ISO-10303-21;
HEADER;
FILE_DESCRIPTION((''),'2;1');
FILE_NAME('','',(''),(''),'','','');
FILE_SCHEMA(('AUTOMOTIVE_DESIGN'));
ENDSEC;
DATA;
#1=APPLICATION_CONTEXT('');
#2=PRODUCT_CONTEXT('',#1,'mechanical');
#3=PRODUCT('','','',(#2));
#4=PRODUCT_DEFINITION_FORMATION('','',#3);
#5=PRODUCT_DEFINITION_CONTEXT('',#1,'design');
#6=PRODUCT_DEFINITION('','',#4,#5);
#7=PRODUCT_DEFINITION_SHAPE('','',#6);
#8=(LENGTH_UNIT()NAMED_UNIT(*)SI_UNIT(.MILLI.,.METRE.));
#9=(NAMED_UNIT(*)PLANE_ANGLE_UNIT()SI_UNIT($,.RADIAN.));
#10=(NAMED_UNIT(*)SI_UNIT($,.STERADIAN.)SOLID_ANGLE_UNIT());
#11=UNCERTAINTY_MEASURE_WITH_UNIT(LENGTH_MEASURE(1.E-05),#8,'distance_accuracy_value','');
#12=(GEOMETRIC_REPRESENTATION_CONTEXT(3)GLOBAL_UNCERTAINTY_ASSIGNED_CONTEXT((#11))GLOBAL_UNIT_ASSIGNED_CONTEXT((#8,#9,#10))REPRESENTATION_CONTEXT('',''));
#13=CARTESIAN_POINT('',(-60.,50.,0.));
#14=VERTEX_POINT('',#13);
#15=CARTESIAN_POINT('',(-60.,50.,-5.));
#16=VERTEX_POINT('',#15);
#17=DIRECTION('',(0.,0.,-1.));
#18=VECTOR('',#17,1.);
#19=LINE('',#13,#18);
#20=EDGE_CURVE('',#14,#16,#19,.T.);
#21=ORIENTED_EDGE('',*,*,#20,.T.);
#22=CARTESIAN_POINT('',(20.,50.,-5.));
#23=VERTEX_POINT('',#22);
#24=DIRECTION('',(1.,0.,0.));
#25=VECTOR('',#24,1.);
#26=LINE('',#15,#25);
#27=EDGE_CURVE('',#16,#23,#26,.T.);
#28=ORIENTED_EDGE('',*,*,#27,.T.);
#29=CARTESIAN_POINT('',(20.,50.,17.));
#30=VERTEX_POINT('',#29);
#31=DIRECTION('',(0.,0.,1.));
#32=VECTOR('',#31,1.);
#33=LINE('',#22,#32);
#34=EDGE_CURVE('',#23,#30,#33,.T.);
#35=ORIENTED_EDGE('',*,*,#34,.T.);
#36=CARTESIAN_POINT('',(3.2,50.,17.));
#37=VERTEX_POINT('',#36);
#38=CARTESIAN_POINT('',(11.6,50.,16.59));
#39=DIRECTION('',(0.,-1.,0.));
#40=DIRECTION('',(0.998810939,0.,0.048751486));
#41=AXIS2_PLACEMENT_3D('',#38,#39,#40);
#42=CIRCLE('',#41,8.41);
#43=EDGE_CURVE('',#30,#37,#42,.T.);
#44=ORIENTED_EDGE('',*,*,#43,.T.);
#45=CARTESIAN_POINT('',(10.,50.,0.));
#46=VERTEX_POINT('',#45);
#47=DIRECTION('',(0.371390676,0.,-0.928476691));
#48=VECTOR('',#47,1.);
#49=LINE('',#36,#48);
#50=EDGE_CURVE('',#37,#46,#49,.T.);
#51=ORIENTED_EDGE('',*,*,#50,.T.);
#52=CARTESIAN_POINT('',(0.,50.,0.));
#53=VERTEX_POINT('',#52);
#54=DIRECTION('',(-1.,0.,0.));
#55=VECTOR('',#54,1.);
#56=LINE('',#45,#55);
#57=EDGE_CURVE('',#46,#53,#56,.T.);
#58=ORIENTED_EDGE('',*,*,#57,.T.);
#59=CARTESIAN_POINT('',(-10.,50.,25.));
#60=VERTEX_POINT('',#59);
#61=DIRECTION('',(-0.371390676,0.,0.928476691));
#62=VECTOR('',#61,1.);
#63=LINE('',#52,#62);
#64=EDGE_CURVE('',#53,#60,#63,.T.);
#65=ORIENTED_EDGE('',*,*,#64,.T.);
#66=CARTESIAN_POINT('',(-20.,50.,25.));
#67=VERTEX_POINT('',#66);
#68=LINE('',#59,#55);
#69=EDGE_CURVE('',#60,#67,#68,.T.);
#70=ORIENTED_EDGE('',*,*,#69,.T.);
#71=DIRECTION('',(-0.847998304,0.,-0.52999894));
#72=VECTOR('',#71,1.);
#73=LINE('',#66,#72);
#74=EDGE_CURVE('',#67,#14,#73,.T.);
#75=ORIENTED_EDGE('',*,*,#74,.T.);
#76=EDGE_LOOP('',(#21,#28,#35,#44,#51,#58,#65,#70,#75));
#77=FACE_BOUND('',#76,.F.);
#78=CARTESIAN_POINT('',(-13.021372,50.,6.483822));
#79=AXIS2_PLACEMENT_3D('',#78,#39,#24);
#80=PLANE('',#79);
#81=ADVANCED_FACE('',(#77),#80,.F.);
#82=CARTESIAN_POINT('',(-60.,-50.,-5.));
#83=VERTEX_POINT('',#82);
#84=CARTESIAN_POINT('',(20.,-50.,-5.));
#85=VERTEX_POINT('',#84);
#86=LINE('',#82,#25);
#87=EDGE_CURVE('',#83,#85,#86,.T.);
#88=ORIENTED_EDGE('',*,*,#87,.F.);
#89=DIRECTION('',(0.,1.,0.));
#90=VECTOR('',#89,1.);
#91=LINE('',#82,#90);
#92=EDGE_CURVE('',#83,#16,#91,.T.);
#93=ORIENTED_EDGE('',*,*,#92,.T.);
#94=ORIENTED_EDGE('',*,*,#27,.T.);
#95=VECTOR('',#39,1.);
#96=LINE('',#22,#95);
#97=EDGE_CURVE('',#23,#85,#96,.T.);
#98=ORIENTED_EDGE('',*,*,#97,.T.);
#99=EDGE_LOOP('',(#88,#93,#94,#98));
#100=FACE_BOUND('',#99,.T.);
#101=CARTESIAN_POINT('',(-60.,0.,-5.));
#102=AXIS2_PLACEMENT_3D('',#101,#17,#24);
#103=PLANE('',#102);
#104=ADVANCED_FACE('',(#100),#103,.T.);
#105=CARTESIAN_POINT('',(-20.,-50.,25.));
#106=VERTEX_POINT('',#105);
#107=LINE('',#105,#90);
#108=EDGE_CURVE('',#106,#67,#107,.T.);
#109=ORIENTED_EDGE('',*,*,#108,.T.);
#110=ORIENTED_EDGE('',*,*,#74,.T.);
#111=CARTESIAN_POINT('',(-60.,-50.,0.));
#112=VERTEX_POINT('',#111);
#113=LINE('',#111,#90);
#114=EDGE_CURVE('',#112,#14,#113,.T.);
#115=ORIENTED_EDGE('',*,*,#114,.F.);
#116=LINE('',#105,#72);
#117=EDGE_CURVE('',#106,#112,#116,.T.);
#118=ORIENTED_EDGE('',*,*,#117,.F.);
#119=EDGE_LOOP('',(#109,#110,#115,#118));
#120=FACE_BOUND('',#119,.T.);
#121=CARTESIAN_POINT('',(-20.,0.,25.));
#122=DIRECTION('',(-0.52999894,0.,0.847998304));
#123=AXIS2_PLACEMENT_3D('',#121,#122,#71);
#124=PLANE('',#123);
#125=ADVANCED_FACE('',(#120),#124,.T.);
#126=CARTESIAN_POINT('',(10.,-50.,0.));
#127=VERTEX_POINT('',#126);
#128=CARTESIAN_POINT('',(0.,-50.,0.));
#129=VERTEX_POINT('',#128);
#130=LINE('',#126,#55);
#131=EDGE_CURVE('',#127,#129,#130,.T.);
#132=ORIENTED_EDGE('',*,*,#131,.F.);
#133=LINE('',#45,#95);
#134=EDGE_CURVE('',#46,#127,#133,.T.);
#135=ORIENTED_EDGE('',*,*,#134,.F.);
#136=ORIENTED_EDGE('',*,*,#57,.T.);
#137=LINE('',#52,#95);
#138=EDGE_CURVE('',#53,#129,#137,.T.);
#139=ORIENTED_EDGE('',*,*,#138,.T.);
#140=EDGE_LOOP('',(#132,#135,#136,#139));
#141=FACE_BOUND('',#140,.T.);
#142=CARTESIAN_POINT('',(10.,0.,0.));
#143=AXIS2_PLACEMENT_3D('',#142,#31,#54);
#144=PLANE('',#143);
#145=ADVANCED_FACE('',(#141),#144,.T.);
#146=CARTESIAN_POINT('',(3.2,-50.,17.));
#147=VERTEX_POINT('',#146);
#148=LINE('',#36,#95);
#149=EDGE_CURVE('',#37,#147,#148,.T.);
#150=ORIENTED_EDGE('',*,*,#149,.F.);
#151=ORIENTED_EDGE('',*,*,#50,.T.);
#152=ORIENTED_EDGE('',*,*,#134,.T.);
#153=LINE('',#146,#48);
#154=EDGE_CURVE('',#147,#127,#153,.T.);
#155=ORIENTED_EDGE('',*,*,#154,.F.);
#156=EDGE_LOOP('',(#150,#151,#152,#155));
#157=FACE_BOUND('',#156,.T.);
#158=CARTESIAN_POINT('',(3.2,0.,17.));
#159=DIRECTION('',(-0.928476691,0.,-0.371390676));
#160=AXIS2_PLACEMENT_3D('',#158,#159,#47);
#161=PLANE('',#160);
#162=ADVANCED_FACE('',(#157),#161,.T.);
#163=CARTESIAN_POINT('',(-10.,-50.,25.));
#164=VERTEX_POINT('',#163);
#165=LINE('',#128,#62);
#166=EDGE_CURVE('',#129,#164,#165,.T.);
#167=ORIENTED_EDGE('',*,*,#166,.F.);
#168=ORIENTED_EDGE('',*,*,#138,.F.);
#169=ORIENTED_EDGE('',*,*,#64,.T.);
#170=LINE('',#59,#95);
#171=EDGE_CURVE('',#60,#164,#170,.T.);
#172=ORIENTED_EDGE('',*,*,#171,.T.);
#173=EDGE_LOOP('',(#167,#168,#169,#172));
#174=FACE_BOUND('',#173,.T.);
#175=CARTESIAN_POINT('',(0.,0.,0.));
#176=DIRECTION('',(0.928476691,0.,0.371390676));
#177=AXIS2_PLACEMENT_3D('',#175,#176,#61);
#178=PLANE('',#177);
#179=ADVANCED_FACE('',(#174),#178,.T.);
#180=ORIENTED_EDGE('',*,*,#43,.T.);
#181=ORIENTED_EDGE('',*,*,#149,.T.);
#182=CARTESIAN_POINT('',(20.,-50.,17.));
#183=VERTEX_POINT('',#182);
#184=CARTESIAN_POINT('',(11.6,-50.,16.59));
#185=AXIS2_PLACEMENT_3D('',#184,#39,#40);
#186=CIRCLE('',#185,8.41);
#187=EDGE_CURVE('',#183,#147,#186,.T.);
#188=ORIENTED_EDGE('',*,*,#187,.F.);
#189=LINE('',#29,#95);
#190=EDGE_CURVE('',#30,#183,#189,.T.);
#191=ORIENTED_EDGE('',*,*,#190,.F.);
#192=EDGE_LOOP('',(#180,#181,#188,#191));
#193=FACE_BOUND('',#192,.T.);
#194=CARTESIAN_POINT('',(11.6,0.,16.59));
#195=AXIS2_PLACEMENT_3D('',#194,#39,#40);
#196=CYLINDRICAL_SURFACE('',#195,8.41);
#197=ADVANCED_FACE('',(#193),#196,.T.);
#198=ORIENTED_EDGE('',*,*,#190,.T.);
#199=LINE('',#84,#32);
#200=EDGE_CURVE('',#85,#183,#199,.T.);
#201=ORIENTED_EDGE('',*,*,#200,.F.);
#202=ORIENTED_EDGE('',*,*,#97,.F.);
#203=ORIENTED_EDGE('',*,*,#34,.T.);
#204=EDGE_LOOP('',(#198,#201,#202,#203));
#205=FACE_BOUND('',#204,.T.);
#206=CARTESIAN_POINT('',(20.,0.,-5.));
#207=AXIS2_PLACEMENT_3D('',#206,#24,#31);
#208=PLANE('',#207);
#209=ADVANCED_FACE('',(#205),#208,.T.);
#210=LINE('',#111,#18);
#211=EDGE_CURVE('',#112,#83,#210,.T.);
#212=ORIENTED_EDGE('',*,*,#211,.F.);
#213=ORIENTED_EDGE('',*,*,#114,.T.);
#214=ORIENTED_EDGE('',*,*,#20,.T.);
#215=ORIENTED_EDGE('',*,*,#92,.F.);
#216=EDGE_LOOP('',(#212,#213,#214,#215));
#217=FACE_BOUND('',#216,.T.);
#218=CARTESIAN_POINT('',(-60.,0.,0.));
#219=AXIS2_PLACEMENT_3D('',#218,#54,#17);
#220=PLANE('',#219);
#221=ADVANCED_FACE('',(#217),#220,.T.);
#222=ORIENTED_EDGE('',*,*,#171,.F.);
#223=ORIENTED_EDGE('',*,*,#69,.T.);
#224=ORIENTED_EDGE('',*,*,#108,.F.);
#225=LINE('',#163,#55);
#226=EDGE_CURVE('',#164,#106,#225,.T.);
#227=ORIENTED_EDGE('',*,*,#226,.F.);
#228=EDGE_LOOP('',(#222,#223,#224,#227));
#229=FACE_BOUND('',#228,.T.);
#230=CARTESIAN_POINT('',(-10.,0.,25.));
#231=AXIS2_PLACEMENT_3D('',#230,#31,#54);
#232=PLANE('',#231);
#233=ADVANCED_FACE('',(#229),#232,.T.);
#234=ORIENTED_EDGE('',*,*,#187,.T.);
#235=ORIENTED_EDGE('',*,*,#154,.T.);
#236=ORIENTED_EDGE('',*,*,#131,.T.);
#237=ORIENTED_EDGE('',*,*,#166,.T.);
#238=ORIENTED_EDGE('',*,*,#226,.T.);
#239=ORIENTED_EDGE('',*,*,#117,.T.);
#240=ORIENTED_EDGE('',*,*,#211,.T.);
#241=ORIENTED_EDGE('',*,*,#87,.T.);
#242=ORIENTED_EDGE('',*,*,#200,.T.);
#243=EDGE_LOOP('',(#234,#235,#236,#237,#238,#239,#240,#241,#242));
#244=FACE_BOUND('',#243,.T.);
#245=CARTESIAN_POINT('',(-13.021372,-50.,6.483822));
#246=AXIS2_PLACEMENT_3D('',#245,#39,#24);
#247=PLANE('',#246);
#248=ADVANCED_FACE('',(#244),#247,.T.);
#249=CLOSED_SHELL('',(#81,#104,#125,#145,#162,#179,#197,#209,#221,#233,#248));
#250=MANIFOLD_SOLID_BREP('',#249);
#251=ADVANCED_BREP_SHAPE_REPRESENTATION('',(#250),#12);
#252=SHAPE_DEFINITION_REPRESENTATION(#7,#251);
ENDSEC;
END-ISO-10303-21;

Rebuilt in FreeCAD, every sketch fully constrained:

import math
import FreeCAD as App
import Part
import Sketcher

doc = App.newDocument("Part")
body = doc.addObject("PartDesign::Body", "Body")

# Sketch on XZ plane
sketch1 = doc.addObject("Sketcher::SketchObject", "Sketch")
body.addObject(sketch1)
sketch1.AttachmentSupport = (doc.XZ_Plane, [""])
sketch1.MapMode = "FlatFace"
sketch1.addGeometry(Part.LineSegment(App.Vector(-60, -5, 0), App.Vector(20, -5, 0)), False)
sketch1.addGeometry(Part.LineSegment(App.Vector(20, -5, 0), App.Vector(20, 17, 0)), False)
sketch1.addGeometry(Part.ArcOfCircle(Part.Circle(App.Vector(11.6, 16.59, 0), App.Vector(0, 0, 1), 8.41), math.radians(2.794362), math.radians(177.205638)), False)
sketch1.addGeometry(Part.LineSegment(App.Vector(3.2, 17, 0), App.Vector(10, 0, 0)), False)
sketch1.addGeometry(Part.LineSegment(App.Vector(10, 0, 0), App.Vector(0, 0, 0)), False)
sketch1.addGeometry(Part.LineSegment(App.Vector(0, 0, 0), App.Vector(-10, 25, 0)), False)
sketch1.addGeometry(Part.LineSegment(App.Vector(-10, 25, 0), App.Vector(-20, 25, 0)), False)
sketch1.addGeometry(Part.LineSegment(App.Vector(-20, 25, 0), App.Vector(-60, 0, 0)), False)
sketch1.addGeometry(Part.LineSegment(App.Vector(-60, 0, 0), App.Vector(-60, -5, 0)), False)
sketch1.addConstraint(Sketcher.Constraint("Coincident", 0, 2, 1, 1))
sketch1.addConstraint(Sketcher.Constraint("Coincident", 1, 2, 2, 1))
sketch1.addConstraint(Sketcher.Constraint("Coincident", 2, 2, 3, 1))
sketch1.addConstraint(Sketcher.Constraint("Coincident", 3, 2, 4, 1))
sketch1.addConstraint(Sketcher.Constraint("Coincident", 4, 2, 5, 1))
sketch1.addConstraint(Sketcher.Constraint("Coincident", 5, 2, 6, 1))
sketch1.addConstraint(Sketcher.Constraint("Coincident", 6, 2, 7, 1))
sketch1.addConstraint(Sketcher.Constraint("Coincident", 7, 2, 8, 1))
sketch1.addConstraint(Sketcher.Constraint("Coincident", 8, 2, 0, 1))
sketch1.addConstraint(Sketcher.Constraint("Horizontal", 0))
sketch1.addConstraint(Sketcher.Constraint("Vertical", 1))
sketch1.addConstraint(Sketcher.Constraint("Horizontal", 4))
sketch1.addConstraint(Sketcher.Constraint("Horizontal", 6))
sketch1.addConstraint(Sketcher.Constraint("Vertical", 8))
sketch1.addConstraint(Sketcher.Constraint("Coincident", 4, 2, -1, 1))
sketch1.addConstraint(Sketcher.Constraint("PointOnObject", 7, 2, -1))
sketch1.addConstraint(Sketcher.Constraint("Parallel", 3, 5))
sketch1.addConstraint(Sketcher.Constraint("Horizontal", 1, 2, 2, 2))
sketch1.addConstraint(Sketcher.Constraint("Equal", 4, 6))
sketch1.addConstraint(Sketcher.Constraint("DistanceX", 0, 1, 0, 2, 80.0))
sketch1.addConstraint(Sketcher.Constraint("DistanceX", 4, 2, 4, 1, 10.0))
sketch1.addConstraint(Sketcher.Constraint("DistanceY", 1, 1, 1, 2, 22.0))
sketch1.addConstraint(Sketcher.Constraint("DistanceY", 8, 2, 8, 1, 5.0))
sketch1.addConstraint(Sketcher.Constraint("Radius", 2, 8.41))
sketch1.addConstraint(Sketcher.Constraint("DistanceX", -1, 1, 0, 2, 20.0))
sketch1.addConstraint(Sketcher.Constraint("DistanceX", 5, 2, -1, 1, 10.0))
sketch1.addConstraint(Sketcher.Constraint("DistanceY", -1, 1, 5, 2, 25.0))
pad1 = doc.addObject("PartDesign::Pad", "Pad")
body.addObject(pad1)
pad1.Profile = sketch1
pad1.Length = 100
pad1.Midplane = True

doc.recompute()
